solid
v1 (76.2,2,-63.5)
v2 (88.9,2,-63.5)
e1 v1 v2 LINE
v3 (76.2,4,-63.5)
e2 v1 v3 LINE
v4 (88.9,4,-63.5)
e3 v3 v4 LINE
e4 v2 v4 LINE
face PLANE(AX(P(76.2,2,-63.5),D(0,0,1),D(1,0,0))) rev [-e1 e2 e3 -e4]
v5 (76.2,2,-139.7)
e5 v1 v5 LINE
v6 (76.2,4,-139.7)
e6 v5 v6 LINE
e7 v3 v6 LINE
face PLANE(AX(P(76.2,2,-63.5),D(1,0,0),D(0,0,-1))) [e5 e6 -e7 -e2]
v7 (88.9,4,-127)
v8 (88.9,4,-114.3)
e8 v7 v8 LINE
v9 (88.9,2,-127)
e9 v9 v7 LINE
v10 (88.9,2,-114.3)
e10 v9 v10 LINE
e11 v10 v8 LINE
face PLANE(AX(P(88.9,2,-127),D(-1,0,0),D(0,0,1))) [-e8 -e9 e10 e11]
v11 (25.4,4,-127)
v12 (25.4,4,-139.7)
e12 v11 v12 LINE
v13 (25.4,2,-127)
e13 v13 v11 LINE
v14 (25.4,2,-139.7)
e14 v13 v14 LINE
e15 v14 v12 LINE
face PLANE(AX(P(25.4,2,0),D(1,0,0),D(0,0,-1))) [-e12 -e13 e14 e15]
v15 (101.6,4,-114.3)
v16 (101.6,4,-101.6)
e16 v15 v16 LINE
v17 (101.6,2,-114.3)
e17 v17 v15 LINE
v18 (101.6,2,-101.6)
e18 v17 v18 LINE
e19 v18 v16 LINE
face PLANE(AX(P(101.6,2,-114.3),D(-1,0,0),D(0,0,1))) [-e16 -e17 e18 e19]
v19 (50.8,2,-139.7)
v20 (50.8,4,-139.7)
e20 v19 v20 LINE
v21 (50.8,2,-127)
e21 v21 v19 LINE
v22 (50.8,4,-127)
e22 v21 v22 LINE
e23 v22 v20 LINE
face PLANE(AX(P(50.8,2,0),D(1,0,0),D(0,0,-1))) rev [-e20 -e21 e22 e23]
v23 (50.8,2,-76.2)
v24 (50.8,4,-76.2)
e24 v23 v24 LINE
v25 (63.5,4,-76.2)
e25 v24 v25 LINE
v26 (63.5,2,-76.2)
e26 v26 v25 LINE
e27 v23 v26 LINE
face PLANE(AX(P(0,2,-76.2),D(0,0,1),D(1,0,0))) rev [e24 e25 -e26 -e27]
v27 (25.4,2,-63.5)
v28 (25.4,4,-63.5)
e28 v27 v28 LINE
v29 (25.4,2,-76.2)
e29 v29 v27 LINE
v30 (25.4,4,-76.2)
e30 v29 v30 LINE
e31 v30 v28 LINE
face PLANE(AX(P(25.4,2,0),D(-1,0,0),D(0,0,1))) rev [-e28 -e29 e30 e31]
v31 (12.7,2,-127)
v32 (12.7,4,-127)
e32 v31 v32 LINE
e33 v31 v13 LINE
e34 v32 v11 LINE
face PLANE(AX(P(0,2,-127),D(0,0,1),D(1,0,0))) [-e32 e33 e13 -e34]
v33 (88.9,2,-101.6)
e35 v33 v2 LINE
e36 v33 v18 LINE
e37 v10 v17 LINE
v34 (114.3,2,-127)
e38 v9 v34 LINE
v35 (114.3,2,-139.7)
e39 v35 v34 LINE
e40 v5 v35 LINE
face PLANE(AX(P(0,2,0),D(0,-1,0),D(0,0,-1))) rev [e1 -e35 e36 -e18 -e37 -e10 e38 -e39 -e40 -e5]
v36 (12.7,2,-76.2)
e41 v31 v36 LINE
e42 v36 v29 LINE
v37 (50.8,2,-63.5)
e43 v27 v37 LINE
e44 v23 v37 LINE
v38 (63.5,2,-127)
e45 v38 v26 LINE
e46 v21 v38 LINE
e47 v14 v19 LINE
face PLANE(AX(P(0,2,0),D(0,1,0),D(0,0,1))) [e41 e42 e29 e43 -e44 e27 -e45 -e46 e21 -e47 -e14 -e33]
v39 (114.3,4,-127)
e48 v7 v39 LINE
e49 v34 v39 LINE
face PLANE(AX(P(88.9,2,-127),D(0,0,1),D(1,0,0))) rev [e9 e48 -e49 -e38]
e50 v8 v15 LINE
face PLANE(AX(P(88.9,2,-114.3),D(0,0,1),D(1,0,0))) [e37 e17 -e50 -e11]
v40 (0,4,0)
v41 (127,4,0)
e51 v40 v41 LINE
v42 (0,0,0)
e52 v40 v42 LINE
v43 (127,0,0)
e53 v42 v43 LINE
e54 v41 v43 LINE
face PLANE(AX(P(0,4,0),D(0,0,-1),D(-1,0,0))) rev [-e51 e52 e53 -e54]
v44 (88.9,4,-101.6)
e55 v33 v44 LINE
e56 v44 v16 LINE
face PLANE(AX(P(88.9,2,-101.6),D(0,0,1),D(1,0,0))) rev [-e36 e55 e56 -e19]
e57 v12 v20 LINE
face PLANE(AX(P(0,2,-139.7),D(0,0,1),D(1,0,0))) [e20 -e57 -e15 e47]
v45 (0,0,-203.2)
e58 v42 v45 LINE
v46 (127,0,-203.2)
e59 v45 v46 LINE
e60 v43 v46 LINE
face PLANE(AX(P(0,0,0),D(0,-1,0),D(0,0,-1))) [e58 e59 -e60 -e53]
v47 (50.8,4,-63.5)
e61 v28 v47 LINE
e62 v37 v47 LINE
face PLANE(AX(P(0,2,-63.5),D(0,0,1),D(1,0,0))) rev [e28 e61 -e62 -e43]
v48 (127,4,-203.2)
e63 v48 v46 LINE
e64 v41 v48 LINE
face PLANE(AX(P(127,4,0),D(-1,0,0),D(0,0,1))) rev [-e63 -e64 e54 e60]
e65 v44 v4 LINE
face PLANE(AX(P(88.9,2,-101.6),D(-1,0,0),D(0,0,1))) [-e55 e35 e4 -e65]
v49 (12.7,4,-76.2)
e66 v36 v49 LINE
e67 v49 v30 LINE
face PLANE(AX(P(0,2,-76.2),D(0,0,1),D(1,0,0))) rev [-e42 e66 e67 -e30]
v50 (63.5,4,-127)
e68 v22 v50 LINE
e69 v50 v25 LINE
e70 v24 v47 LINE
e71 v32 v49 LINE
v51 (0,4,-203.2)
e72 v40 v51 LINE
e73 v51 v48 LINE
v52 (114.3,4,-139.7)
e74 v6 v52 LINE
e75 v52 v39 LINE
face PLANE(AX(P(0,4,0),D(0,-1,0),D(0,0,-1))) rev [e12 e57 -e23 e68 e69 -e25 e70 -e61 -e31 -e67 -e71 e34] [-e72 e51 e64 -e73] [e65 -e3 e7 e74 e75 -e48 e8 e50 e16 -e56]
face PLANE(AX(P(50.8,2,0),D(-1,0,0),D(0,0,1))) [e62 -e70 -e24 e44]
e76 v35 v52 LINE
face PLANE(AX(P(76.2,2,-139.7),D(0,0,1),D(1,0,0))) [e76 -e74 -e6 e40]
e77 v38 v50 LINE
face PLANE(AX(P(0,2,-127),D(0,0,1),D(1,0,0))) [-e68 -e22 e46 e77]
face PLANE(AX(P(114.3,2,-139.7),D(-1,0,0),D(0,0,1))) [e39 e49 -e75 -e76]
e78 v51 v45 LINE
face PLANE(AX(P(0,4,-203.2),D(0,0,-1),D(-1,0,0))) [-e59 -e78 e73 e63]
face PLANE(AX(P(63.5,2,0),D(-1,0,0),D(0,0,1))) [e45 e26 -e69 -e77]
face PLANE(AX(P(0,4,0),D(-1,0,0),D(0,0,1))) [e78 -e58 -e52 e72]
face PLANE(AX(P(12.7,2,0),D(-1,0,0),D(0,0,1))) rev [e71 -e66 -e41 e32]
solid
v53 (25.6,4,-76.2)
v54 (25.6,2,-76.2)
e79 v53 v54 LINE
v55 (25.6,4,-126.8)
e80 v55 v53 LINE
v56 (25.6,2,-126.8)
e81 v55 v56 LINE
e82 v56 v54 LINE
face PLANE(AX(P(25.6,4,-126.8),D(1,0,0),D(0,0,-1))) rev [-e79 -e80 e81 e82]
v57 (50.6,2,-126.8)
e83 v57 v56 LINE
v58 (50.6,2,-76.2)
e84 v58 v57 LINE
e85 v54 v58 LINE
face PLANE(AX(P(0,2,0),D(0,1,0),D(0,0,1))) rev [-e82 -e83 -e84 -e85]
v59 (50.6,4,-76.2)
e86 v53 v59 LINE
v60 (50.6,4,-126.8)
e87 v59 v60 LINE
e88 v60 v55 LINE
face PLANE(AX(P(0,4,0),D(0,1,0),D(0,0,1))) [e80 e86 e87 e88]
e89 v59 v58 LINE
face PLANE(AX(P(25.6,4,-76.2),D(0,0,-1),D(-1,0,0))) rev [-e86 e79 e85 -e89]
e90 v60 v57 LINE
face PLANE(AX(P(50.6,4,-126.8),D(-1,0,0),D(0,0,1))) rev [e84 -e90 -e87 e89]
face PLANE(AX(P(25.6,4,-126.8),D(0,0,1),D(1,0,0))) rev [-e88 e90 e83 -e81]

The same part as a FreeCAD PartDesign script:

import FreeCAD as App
import Part
import Sketcher
Q = App.Units.Quantity

doc = App.newDocument("Part")
body = doc.addObject("PartDesign::Body", "Body")

# Sketch on XZ plane
sketch1 = doc.addObject("Sketcher::SketchObject", "Sketch")
body.addObject(sketch1)
sketch1.AttachmentSupport = (doc.XZ_Plane, [""])
sketch1.MapMode = "FlatFace"
sketch1.addGeometry([
    Part.LineSegment(App.Vector(0, -203, 0), App.Vector(0, 0, 0)),
    Part.LineSegment(App.Vector(0, 0, 0), App.Vector(127, 0, 0)),
    Part.LineSegment(App.Vector(127, 0, 0), App.Vector(127, -203, 0)),
    Part.LineSegment(App.Vector(127, -203, 0), App.Vector(0, -203, 0)),
], False)
sketch1.addConstraint([
    Sketcher.Constraint("Coincident", 0, 2, 1, 1),
    Sketcher.Constraint("Coincident", 1, 2, 2, 1),
    Sketcher.Constraint("Coincident", 2, 2, 3, 1),
    Sketcher.Constraint("Coincident", 3, 2, 0, 1),
    Sketcher.Constraint("Vertical", 0),
    Sketcher.Constraint("Horizontal", 1),
    Sketcher.Constraint("Vertical", 2),
    Sketcher.Constraint("Horizontal", 3),
    Sketcher.Constraint("Coincident", 0, 2, -1, 1),
    Sketcher.Constraint("DistanceX", 1, 1, 1, 2, Q("5 in")),
    Sketcher.Constraint("DistanceY", 0, 1, 0, 2, Q("8 in")),
])
pad1 = doc.addObject("PartDesign::Pad", "Pad")
body.addObject(pad1)
pad1.Profile = sketch1
pad1.Length = 4
pad1.Reversed = True

# Sketch on XZ plane
sketch2 = doc.addObject("Sketcher::SketchObject", "Sketch001")
body.addObject(sketch2)
sketch2.AttachmentSupport = (doc.XZ_Plane, [""])
sketch2.MapMode = "FlatFace"
sketch2.AttachmentOffset = App.Placement(App.Vector(0, 0, -4), App.Rotation())
sketch2.addGeometry([
    Part.LineSegment(App.Vector(89, -114, 0), App.Vector(89, -127, 0)),  # 0
    Part.LineSegment(App.Vector(89, -127, 0), App.Vector(114, -127, 0)),  # 1
    Part.LineSegment(App.Vector(114, -127, 0), App.Vector(114, -140, 0)),  # 2
    Part.LineSegment(App.Vector(114, -140, 0), App.Vector(76, -140, 0)),  # 3
    Part.LineSegment(App.Vector(76, -140, 0), App.Vector(76, -64, 0)),  # 4
    Part.LineSegment(App.Vector(76, -64, 0), App.Vector(89, -64, 0)),  # 5
    Part.LineSegment(App.Vector(89, -64, 0), App.Vector(89, -102, 0)),  # 6
    Part.LineSegment(App.Vector(89, -102, 0), App.Vector(102, -102, 0)),  # 7
    Part.LineSegment(App.Vector(102, -102, 0), App.Vector(102, -114, 0)),  # 8
    Part.LineSegment(App.Vector(102, -114, 0), App.Vector(89, -114, 0)),  # 9
], False)
sketch2.addConstraint([
    Sketcher.Constraint("Coincident", 0, 2, 1, 1),
    Sketcher.Constraint("Coincident", 1, 2, 2, 1),
    Sketcher.Constraint("Coincident", 2, 2, 3, 1),
    Sketcher.Constraint("Coincident", 3, 2, 4, 1),
    Sketcher.Constraint("Coincident", 4, 2, 5, 1),
    Sketcher.Constraint("Coincident", 5, 2, 6, 1),
    Sketcher.Constraint("Coincident", 6, 2, 7, 1),
    Sketcher.Constraint("Coincident", 7, 2, 8, 1),
    Sketcher.Constraint("Coincident", 8, 2, 9, 1),
    Sketcher.Constraint("Coincident", 9, 2, 0, 1),
    Sketcher.Constraint("Vertical", 0),
    Sketcher.Constraint("Horizontal", 1),
    Sketcher.Constraint("Vertical", 2),
    Sketcher.Constraint("Horizontal", 3),
    Sketcher.Constraint("Vertical", 4),
    Sketcher.Constraint("Horizontal", 5),
    Sketcher.Constraint("Vertical", 6),
    Sketcher.Constraint("Horizontal", 7),
    Sketcher.Constraint("Vertical", 8),
    Sketcher.Constraint("Horizontal", 9),
    Sketcher.Constraint("Vertical", 0, 2, 5, 2),
    Sketcher.Constraint("Equal", 5, 7),
    Sketcher.Constraint("Equal", 9, 0),
    Sketcher.Constraint("Equal", 0, 2),
    Sketcher.Constraint("Equal", 3, 6),
    Sketcher.Constraint("Equal", 2, 8),
    Sketcher.Constraint("DistanceX", 1, 1, 1, 2, Q("1 in")),
    Sketcher.Constraint("DistanceY", 4, 1, 4, 2, Q("3 in")),
    Sketcher.Constraint("DistanceY", 0, 2, -1, 1, Q("5 in")),
    Sketcher.Constraint("DistanceX", -1, 1, 3, 2, Q("3 in")),
])
pocket1 = doc.addObject("PartDesign::Pocket", "Pocket")
body.addObject(pocket1)
pocket1.Profile = sketch2
pocket1.Length = 2
pocket1.Reversed = True

# Sketch on XZ plane
sketch3 = doc.addObject("Sketcher::SketchObject", "Sketch002")
body.addObject(sketch3)
sketch3.AttachmentSupport = (doc.XZ_Plane, [""])
sketch3.MapMode = "FlatFace"
sketch3.AttachmentOffset = App.Placement(App.Vector(0, 0, -4), App.Rotation())
sketch3.addGeometry([
    Part.LineSegment(App.Vector(13, -127, 0), App.Vector(13, -76, 0)),  # 0
    Part.LineSegment(App.Vector(13, -76, 0), App.Vector(25, -76, 0)),  # 1
    Part.LineSegment(App.Vector(25, -76, 0), App.Vector(25, -64, 0)),  # 2
    Part.LineSegment(App.Vector(25, -64, 0), App.Vector(51, -64, 0)),  # 3
    Part.LineSegment(App.Vector(51, -64, 0), App.Vector(51, -76, 0)),  # 4
    Part.LineSegment(App.Vector(51, -76, 0), App.Vector(64, -76, 0)),  # 5
    Part.LineSegment(App.Vector(64, -76, 0), App.Vector(64, -127, 0)),  # 6
    Part.LineSegment(App.Vector(64, -127, 0), App.Vector(51, -127, 0)),  # 7
    Part.LineSegment(App.Vector(51, -127, 0), App.Vector(51, -140, 0)),  # 8
    Part.LineSegment(App.Vector(51, -140, 0), App.Vector(25, -140, 0)),  # 9
    Part.LineSegment(App.Vector(25, -140, 0), App.Vector(25, -127, 0)),  # 10
    Part.LineSegment(App.Vector(25, -127, 0), App.Vector(13, -127, 0)),  # 11
], False)
sketch3.addConstraint([
    Sketcher.Constraint("Coincident", 0, 2, 1, 1),
    Sketcher.Constraint("Coincident", 1, 2, 2, 1),
    Sketcher.Constraint("Coincident", 2, 2, 3, 1),
    Sketcher.Constraint("Coincident", 3, 2, 4, 1),
    Sketcher.Constraint("Coincident", 4, 2, 5, 1),
    Sketcher.Constraint("Coincident", 5, 2, 6, 1),
    Sketcher.Constraint("Coincident", 6, 2, 7, 1),
    Sketcher.Constraint("Coincident", 7, 2, 8, 1),
    Sketcher.Constraint("Coincident", 8, 2, 9, 1),
    Sketcher.Constraint("Coincident", 9, 2, 10, 1),
    Sketcher.Constraint("Coincident", 10, 2, 11, 1),
    Sketcher.Constraint("Coincident", 11, 2, 0, 1),
    Sketcher.Constraint("Vertical", 0),
    Sketcher.Constraint("Horizontal", 1),
    Sketcher.Constraint("Vertical", 2),
    Sketcher.Constraint("Horizontal", 3),
    Sketcher.Constraint("Vertical", 4),
    Sketcher.Constraint("Horizontal", 5),
    Sketcher.Constraint("Vertical", 6),
    Sketcher.Constraint("Horizontal", 7),
    Sketcher.Constraint("Vertical", 8),
    Sketcher.Constraint("Horizontal", 9),
    Sketcher.Constraint("Vertical", 10),
    Sketcher.Constraint("Horizontal", 11),
    Sketcher.Constraint("Horizontal", 1, 2, 4, 2),
    Sketcher.Constraint("Horizontal", 7, 2, 10, 2),
    Sketcher.Constraint("Vertical", 4, 2, 7, 2),
    Sketcher.Constraint("Vertical", 2, 2, 9, 2),
    Sketcher.Constraint("Equal", 1, 5),
    Sketcher.Constraint("Equal", 11, 2),
    Sketcher.Constraint("Equal", 4, 8),
    Sketcher.Constraint("DistanceX", 3, 1, 3, 2, Q("1 in")),
    Sketcher.Constraint("DistanceY", 0, 1, 0, 2, Q("2 in")),
    Sketcher.Constraint("DistanceX", 1, 1, 1, 2, Q("0.5 in")),
    Sketcher.Constraint("DistanceY", 0, 2, -1, 1, Q("3 in")),
    Sketcher.Constraint("DistanceX", -1, 1, 1, 2, Q("1 in")),
])
pocket2 = doc.addObject("PartDesign::Pocket", "Pocket001")
body.addObject(pocket2)
pocket2.Profile = sketch3
pocket2.Length = 2
pocket2.Reversed = True
body2 = doc.addObject("PartDesign::Body", "Body001")

# Sketch on XZ plane
sketch4 = doc.addObject("Sketcher::SketchObject", "Sketch003")
body2.addObject(sketch4)
sketch4.AttachmentSupport = (doc.getObject("XZ_Plane001"), [""])
sketch4.MapMode = "FlatFace"
sketch4.AttachmentOffset = App.Placement(App.Vector(0, 0, -2), App.Rotation())
sketch4.addGeometry([
    Part.LineSegment(App.Vector(26, -127, 0), App.Vector(26, -76, 0)),
    Part.LineSegment(App.Vector(26, -76, 0), App.Vector(51, -76, 0)),
    Part.LineSegment(App.Vector(51, -76, 0), App.Vector(51, -127, 0)),
    Part.LineSegment(App.Vector(51, -127, 0), App.Vector(26, -127, 0)),
], False)
sketch4.addConstraint([
    Sketcher.Constraint("Coincident", 0, 2, 1, 1),
    Sketcher.Constraint("Coincident", 1, 2, 2, 1),
    Sketcher.Constraint("Coincident", 2, 2, 3, 1),
    Sketcher.Constraint("Coincident", 3, 2, 0, 1),
    Sketcher.Constraint("Vertical", 0),
    Sketcher.Constraint("Horizontal", 1),
    Sketcher.Constraint("Vertical", 2),
    Sketcher.Constraint("Horizontal", 3),
    Sketcher.Constraint("DistanceY", 0, 2, -1, 1, Q("3 in")),
    Sketcher.Constraint("DistanceX", 1, 1, 1, 2, 25.0),
    Sketcher.Constraint("DistanceY", 0, 1, 0, 2, 50.6),
    Sketcher.Constraint("DistanceX", -1, 1, 0, 2, 25.6),
])
pad2 = doc.addObject("PartDesign::Pad", "Pad001")
body2.addObject(pad2)
pad2.Profile = sketch4
pad2.Length = 2
pad2.Reversed = True

doc.recompute()
